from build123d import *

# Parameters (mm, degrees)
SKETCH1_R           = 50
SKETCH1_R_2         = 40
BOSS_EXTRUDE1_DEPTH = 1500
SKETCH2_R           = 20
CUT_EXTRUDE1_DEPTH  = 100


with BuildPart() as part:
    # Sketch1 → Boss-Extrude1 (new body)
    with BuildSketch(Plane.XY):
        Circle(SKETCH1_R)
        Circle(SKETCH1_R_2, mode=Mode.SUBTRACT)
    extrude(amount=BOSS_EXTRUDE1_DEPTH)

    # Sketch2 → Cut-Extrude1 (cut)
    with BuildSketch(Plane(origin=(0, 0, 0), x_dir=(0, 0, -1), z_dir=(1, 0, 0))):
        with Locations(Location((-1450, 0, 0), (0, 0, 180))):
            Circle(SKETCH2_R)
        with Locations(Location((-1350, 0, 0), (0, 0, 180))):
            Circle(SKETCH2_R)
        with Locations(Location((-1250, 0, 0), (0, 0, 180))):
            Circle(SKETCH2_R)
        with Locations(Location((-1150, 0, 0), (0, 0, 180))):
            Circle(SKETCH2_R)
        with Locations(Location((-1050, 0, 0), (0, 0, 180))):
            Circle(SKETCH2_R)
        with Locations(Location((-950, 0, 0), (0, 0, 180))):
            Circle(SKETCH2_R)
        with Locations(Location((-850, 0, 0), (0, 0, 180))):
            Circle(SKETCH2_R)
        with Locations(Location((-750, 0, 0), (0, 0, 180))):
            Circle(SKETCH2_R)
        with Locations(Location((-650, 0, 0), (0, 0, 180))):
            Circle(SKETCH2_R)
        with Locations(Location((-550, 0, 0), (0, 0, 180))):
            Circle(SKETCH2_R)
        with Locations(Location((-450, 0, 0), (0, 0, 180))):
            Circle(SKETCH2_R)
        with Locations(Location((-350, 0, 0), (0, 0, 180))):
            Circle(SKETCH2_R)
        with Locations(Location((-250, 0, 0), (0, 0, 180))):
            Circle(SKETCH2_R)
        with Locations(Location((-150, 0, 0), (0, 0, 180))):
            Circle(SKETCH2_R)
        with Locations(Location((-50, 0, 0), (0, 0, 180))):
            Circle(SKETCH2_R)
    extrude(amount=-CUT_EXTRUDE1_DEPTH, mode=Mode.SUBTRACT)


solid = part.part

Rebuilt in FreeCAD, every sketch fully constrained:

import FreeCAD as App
import Part
import Sketcher
from FreeCAD import Vector
Q = App.Units.Quantity

doc = App.newDocument("Part")
body = doc.addObject("PartDesign::Body", "Body")

# Sketch on XY plane
sketch1 = body.newObject("Sketcher::SketchObject", "Sketch")
sketch1.AttachmentSupport = (doc.getObject("XY_Plane"), [""])
sketch1.MapMode = "FlatFace"
sketch1.addGeometry([
    Part.Circle(Vector(0, 0, 0), Vector(0, 0, 1), 50),
    Part.Circle(Vector(0, 0, 0), Vector(0, 0, 1), 40),
], False)
sketch1.addConstraint([
    Sketcher.Constraint("Coincident", 0, 3, -1, 1),
    Sketcher.Constraint("Coincident", 1, 3, -1, 1),
    Sketcher.Constraint("Diameter", 0, Q("100 mm")),
    Sketcher.Constraint("Diameter", 1, Q("80 mm")),
])
pad1 = body.newObject("PartDesign::Pad", "Pad")
pad1.Profile = sketch1
pad1.Length = 1500

# Sketch on YZ plane
sketch2 = body.newObject("Sketcher::SketchObject", "Sketch001")
sketch2.AttachmentSupport = (doc.getObject("YZ_Plane"), [""])
sketch2.MapMode = "FlatFace"
sketch2.addGeometry([
    Part.Circle(Vector(0, 1450, 0), Vector(0, 0, 1), 20),  # 0
    Part.Circle(Vector(0, 1350, 0), Vector(0, 0, 1), 20),  # 1
    Part.Circle(Vector(0, 1250, 0), Vector(0, 0, 1), 20),  # 2
    Part.Circle(Vector(0, 1150, 0), Vector(0, 0, 1), 20),  # 3
    Part.Circle(Vector(0, 1050, 0), Vector(0, 0, 1), 20),  # 4
    Part.Circle(Vector(0, 950, 0), Vector(0, 0, 1), 20),  # 5
    Part.Circle(Vector(0, 850, 0), Vector(0, 0, 1), 20),  # 6
    Part.Circle(Vector(0, 750, 0), Vector(0, 0, 1), 20),  # 7
    Part.Circle(Vector(0, 650, 0), Vector(0, 0, 1), 20),  # 8
    Part.Circle(Vector(0, 550, 0), Vector(0, 0, 1), 20),  # 9
    Part.Circle(Vector(0, 450, 0), Vector(0, 0, 1), 20),  # 10
    Part.Circle(Vector(0, 350, 0), Vector(0, 0, 1), 20),  # 11
    Part.Circle(Vector(0, 250, 0), Vector(0, 0, 1), 20),  # 12
    Part.Circle(Vector(0, 150, 0), Vector(0, 0, 1), 20),  # 13
    Part.Circle(Vector(0, 50, 0), Vector(0, 0, 1), 20),  # 14
], False)
sketch2.addConstraint([
    Sketcher.Constraint("Equal", 0, 1),
    Sketcher.Constraint("Equal", 1, 2),
    Sketcher.Constraint("Equal", 2, 3),
    Sketcher.Constraint("Equal", 3, 4),
    Sketcher.Constraint("Equal", 4, 5),
    Sketcher.Constraint("Equal", 5, 6),
    Sketcher.Constraint("Equal", 6, 7),
    Sketcher.Constraint("Equal", 7, 8),
    Sketcher.Constraint("Equal", 8, 9),
    Sketcher.Constraint("Equal", 9, 10),
    Sketcher.Constraint("Equal", 10, 11),
    Sketcher.Constraint("Equal", 11, 12),
    Sketcher.Constraint("Equal", 12, 13),
    Sketcher.Constraint("Equal", 13, 14),
    Sketcher.Constraint("PointOnObject", 0, 3, -2),
    Sketcher.Constraint("PointOnObject", 1, 3, -2),
    Sketcher.Constraint("PointOnObject", 2, 3, -2),
    Sketcher.Constraint("PointOnObject", 3, 3, -2),
    Sketcher.Constraint("PointOnObject", 4, 3, -2),
    Sketcher.Constraint("PointOnObject", 5, 3, -2),
    Sketcher.Constraint("PointOnObject", 6, 3, -2),
    Sketcher.Constraint("PointOnObject", 7, 3, -2),
    Sketcher.Constraint("PointOnObject", 8, 3, -2),
    Sketcher.Constraint("PointOnObject", 9, 3, -2),
    Sketcher.Constraint("PointOnObject", 10, 3, -2),
    Sketcher.Constraint("PointOnObject", 11, 3, -2),
    Sketcher.Constraint("PointOnObject", 12, 3, -2),
    Sketcher.Constraint("PointOnObject", 13, 3, -2),
    Sketcher.Constraint("PointOnObject", 14, 3, -2),
    Sketcher.Constraint("Diameter", 0, Q("40 mm")),
    Sketcher.Constraint("DistanceY", -1, 1, 0, 3, Q("1450 mm")),
    Sketcher.Constraint("DistanceY", -1, 1, 1, 3, Q("1350 mm")),
    Sketcher.Constraint("DistanceY", -1, 1, 2, 3, Q("1250 mm")),
    Sketcher.Constraint("DistanceY", -1, 1, 3, 3, Q("1150 mm")),
    Sketcher.Constraint("DistanceY", -1, 1, 4, 3, Q("1050 mm")),
    Sketcher.Constraint("DistanceY", -1, 1, 5, 3, Q("950 mm")),
    Sketcher.Constraint("DistanceY", -1, 1, 6, 3, Q("850 mm")),
    Sketcher.Constraint("DistanceY", -1, 1, 7, 3, Q("750 mm")),
    Sketcher.Constraint("DistanceY", -1, 1, 8, 3, Q("650 mm")),
    Sketcher.Constraint("DistanceY", -1, 1, 9, 3, Q("550 mm")),
    Sketcher.Constraint("DistanceY", -1, 1, 10, 3, Q("450 mm")),
    Sketcher.Constraint("DistanceY", -1, 1, 11, 3, Q("350 mm")),
    Sketcher.Constraint("DistanceY", -1, 1, 12, 3, Q("250 mm")),
    Sketcher.Constraint("DistanceY", -1, 1, 13, 3, Q("150 mm")),
    Sketcher.Constraint("DistanceY", -1, 1, 14, 3, Q("50 mm")),
])
pocket1 = body.newObject("PartDesign::Pocket", "Pocket")
pocket1.Profile = sketch2
pocket1.Length = 100

doc.recompute()
